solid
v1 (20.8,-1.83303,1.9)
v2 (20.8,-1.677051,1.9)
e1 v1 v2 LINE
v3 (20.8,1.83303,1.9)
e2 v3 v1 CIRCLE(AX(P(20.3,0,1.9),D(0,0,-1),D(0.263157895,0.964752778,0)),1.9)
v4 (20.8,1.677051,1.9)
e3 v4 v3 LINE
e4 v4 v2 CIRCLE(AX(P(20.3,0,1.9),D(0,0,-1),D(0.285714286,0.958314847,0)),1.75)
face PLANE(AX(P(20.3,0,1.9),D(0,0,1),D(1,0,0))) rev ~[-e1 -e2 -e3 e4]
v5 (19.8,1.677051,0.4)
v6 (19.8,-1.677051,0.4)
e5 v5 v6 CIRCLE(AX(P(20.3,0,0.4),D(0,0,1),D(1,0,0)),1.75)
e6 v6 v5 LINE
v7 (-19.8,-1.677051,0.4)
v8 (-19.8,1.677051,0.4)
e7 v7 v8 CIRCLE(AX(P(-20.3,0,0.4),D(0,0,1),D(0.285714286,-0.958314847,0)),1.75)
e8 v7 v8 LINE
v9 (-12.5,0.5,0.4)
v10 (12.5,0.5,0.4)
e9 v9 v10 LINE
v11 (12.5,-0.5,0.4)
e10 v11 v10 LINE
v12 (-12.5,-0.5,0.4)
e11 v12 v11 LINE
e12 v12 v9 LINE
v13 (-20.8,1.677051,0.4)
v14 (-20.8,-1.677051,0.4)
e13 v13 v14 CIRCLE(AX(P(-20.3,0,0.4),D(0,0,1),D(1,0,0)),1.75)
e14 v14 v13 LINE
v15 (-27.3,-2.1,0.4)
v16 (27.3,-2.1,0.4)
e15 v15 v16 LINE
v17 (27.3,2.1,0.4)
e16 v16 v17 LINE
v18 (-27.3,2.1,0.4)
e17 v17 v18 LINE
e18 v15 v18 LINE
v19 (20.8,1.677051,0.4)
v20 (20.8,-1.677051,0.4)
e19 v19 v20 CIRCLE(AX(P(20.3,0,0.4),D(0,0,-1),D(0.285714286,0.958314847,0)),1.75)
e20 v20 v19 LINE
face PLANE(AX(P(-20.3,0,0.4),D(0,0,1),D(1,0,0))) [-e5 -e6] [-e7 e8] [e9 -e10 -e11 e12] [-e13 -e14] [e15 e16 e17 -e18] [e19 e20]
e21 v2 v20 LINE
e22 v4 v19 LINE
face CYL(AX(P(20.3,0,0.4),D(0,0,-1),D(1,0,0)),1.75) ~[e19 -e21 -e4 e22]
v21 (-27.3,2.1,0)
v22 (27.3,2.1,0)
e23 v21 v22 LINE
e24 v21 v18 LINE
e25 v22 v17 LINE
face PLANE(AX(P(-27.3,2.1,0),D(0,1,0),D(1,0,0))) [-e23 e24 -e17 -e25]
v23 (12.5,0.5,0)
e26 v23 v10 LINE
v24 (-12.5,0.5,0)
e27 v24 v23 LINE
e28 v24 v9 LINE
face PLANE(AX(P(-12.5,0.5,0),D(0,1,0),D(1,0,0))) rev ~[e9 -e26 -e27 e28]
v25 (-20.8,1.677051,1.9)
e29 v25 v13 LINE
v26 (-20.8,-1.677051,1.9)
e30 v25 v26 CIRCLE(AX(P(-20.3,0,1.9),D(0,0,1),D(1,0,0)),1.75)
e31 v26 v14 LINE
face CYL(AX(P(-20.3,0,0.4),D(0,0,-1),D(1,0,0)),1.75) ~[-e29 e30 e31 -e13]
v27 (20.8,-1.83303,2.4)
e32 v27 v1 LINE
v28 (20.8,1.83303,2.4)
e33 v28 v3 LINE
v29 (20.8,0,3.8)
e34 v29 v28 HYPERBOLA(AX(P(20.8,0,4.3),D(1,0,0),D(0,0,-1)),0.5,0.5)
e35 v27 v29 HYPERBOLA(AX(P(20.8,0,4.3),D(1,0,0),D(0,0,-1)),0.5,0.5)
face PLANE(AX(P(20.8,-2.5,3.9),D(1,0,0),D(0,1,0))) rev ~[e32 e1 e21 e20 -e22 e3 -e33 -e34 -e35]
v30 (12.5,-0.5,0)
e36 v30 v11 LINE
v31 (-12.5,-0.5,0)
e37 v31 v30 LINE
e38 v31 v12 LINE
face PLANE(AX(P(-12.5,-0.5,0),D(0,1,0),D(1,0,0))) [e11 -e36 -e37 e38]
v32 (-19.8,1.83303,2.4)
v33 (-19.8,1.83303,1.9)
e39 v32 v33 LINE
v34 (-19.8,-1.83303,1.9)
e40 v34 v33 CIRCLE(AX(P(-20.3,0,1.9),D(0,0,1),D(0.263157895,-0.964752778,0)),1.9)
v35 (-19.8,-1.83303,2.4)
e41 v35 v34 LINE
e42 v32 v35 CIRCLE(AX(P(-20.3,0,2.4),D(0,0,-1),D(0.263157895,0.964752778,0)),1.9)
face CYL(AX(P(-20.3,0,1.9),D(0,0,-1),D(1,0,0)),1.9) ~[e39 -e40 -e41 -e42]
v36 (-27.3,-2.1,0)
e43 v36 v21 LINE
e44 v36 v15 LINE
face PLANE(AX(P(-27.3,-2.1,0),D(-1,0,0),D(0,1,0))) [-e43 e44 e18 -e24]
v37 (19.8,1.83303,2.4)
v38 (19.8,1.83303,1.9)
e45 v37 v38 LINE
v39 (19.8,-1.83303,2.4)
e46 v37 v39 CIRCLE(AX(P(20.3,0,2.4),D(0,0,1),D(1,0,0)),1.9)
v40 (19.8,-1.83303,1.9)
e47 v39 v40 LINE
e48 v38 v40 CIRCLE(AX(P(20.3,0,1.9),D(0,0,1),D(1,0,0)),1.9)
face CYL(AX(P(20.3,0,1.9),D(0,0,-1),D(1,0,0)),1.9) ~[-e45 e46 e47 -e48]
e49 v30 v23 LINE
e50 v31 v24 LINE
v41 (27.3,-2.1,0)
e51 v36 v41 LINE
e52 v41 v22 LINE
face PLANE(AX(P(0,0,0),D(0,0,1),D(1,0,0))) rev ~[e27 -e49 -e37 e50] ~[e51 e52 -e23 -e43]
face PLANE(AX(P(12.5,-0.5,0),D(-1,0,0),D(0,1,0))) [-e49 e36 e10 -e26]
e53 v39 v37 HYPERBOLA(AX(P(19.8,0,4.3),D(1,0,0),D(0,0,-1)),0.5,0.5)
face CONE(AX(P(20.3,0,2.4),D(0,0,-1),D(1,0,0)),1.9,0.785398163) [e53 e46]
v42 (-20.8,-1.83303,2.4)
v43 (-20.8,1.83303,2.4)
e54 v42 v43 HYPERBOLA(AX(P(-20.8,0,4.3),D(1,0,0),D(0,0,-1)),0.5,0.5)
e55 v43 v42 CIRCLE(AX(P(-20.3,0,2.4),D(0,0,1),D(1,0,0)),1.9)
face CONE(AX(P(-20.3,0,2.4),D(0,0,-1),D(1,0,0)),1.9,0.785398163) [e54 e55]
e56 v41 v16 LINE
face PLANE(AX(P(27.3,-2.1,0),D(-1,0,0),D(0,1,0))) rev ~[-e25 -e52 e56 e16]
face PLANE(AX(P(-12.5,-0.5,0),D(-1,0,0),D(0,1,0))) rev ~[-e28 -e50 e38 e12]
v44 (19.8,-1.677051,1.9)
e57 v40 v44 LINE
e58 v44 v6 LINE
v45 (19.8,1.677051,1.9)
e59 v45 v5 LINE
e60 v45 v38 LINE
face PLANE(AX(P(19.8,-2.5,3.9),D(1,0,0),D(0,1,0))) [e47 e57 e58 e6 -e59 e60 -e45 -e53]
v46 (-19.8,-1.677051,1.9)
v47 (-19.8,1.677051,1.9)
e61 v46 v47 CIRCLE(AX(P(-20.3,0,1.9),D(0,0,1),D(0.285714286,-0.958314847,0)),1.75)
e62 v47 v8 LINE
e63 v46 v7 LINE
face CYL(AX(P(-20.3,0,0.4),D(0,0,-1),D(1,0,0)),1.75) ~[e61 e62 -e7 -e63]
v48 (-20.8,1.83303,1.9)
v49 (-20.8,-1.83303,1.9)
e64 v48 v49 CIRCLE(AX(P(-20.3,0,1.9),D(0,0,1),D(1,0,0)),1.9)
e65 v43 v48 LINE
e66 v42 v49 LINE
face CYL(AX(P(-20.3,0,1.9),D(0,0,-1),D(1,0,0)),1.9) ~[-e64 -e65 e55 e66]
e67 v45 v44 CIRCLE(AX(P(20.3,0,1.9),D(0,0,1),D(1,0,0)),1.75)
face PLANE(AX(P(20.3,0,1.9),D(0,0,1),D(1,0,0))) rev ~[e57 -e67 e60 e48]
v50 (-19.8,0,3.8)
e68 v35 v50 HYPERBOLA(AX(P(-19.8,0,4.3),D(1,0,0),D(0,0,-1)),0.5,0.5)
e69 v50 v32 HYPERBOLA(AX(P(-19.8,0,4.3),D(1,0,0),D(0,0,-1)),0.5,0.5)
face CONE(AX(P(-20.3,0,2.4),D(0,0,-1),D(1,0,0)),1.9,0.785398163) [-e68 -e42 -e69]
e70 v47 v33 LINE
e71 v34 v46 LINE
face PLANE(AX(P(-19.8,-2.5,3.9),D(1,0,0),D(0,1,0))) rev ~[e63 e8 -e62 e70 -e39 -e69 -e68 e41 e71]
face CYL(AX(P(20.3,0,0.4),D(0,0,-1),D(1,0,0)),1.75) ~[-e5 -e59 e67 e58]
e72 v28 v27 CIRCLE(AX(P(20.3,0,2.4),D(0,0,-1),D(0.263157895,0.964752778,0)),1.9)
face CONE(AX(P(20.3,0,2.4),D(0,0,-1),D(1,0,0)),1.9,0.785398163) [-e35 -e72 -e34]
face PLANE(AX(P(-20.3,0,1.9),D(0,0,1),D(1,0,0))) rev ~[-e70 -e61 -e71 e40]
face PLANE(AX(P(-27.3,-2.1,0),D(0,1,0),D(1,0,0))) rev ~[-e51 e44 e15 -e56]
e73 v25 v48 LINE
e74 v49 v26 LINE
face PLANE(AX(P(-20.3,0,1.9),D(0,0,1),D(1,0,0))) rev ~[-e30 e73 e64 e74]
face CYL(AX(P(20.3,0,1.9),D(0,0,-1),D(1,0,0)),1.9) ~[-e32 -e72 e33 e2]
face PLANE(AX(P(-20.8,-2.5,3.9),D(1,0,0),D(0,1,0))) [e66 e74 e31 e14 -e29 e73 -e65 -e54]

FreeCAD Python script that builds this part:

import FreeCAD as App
import Part
import Sketcher

V = App.Vector
Q = App.Units.Quantity


def edges_at(feature, points):
    """Names of the edges that pass closest to the given points."""
    edges = feature.Shape.Edges
    near = lambda p: min(range(len(edges)), key=lambda i: edges[i].distToShape(Part.Vertex(*p))[0])
    return sorted({f"Edge{near(p) + 1}" for p in points})


def add_polygon(sketch, points):
    """Adds a closed chain of lines whose ends are joined by coincident constraints."""
    first, n = sketch.GeometryCount, len(points)
    for a, b in zip(points, points[1:] + points[:1]):
        sketch.addGeometry(Part.LineSegment(App.Vector(*a, 0), App.Vector(*b, 0)), False)
    for i in range(n):
        sketch.addConstraint(Sketcher.Constraint("Coincident", first + i, 2, first + (i + 1) % n, 1))

doc = App.newDocument("Part")
body = doc.addObject("PartDesign::Body", "Body")

# Sketch on XY plane
sketch1 = body.newObject("Sketcher::SketchObject", "Sketch")
sketch1.AttachmentSupport = (doc.getObject("XY_Plane"), [""])
sketch1.MapMode = "FlatFace"
add_polygon(sketch1, [(-27.3, 2.1), (-27.3, -2.1), (27.3, -2.1), (27.3, 2.1)])  # lines 0-3
add_polygon(sketch1, [(12.5, -0.5), (-12.5, -0.5), (-12.5, 0.5), (12.5, 0.5)])  # lines 4-7
sketch1.addConstraint([
    Sketcher.Constraint("Vertical", 0),
    Sketcher.Constraint("Horizontal", 1),
    Sketcher.Constraint("Vertical", 2),
    Sketcher.Constraint("Horizontal", 3),
    Sketcher.Constraint("Horizontal", 4),
    Sketcher.Constraint("Vertical", 5),
    Sketcher.Constraint("Horizontal", 6),
    Sketcher.Constraint("Vertical", 7),
    Sketcher.Constraint("Symmetric", 0, 2, 2, 2, -1, 1),
    Sketcher.Constraint("Symmetric", 4, 2, 6, 2, -1, 1),
    Sketcher.Constraint("DistanceX", 4, 2, 4, 1, Q("25 mm")),
    Sketcher.Constraint("DistanceY", 5, 1, 5, 2, Q("1 mm")),
    Sketcher.Constraint("DistanceX", 1, 1, 1, 2, Q("54.6 mm")),
    Sketcher.Constraint("DistanceY", 0, 2, 0, 1, Q("4.2 mm")),
])
pad1 = body.newObject("PartDesign::Pad", "Pad")
pad1.Profile = sketch1
pad1.Length = 0.4

# Sketch on XY plane
sketch2 = body.newObject("Sketcher::SketchObject", "Sketch001")
sketch2.AttachmentSupport = (doc.getObject("XY_Plane"), [""])
sketch2.MapMode = "FlatFace"
sketch2.AttachmentOffset = App.Placement(V(0, 0, 0.4), App.Rotation())
sketch2.addGeometry([
    Part.Circle(V(-20.3, 0, 0), V(0, 0, 1), 1.75),
    Part.Circle(V(20.3, 0, 0), V(0, 0, 1), 1.75),
], False)
sketch2.addConstraint([
    Sketcher.Constraint("Equal", 0, 1),
    Sketcher.Constraint("Symmetric", 0, 3, 1, 3, -1, 1),
    Sketcher.Constraint("PointOnObject", 0, 3, -1),
    Sketcher.Constraint("Diameter", 0, Q("3.5 mm")),
    Sketcher.Constraint("DistanceX", 0, 3, -1, 1, Q("20.3 mm")),
])
pad2 = body.newObject("PartDesign::Pad", "Pad001")
pad2.Profile = sketch2
pad2.Length = 1.5

# Sketch on XY plane
sketch3 = body.newObject("Sketcher::SketchObject", "Sketch002")
sketch3.AttachmentSupport = (doc.getObject("XY_Plane"), [""])
sketch3.MapMode = "FlatFace"
sketch3.AttachmentOffset = App.Placement(V(0, 0, 1.9), App.Rotation())
sketch3.addGeometry([
    Part.Circle(V(-20.3, 0, 0), V(0, 0, 1), 1.9),
    Part.Circle(V(20.3, 0, 0), V(0, 0, 1), 1.9),
], False)
sketch3.addConstraint([
    Sketcher.Constraint("Equal", 0, 1),
    Sketcher.Constraint("Symmetric", 0, 3, 1, 3, -1, 1),
    Sketcher.Constraint("PointOnObject", 0, 3, -1),
    Sketcher.Constraint("Diameter", 0, Q("3.8 mm")),
    Sketcher.Constraint("DistanceX", 0, 3, -1, 1, Q("20.3 mm")),
])
pad3 = body.newObject("PartDesign::Pad", "Pad002")
pad3.Profile = sketch3
pad3.Length = 2
doc.recompute()

chamfer = body.newObject("PartDesign::Chamfer", "Chamfer")
chamfer.Base = (pad3, edges_at(pad3, [(-22.2, 0, 3.9), (18.4, 0, 3.9)]))
chamfer.Size = 1.5

# Sketch on XY plane
sketch4 = body.newObject("Sketcher::SketchObject", "Sketch003")
sketch4.AttachmentSupport = (doc.getObject("XY_Plane"), [""])
sketch4.MapMode = "FlatFace"
sketch4.AttachmentOffset = App.Placement(V(0, 0, 3.9), App.Rotation())
add_polygon(sketch4, [(-20.8, 2.5), (-20.8, -2.5), (-19.8, -2.5), (-19.8, 2.5)])  # lines 0-3
add_polygon(sketch4, [(19.8, 2.5), (19.8, -2.5), (20.8, -2.5), (20.8, 2.5)])  # lines 4-7
sketch4.addConstraint([
    Sketcher.Constraint("Vertical", 0),
    Sketcher.Constraint("Horizontal", 1),
    Sketcher.Constraint("Vertical", 2),
    Sketcher.Constraint("Horizontal", 3),
    Sketcher.Constraint("Vertical", 4),
    Sketcher.Constraint("Horizontal", 5),
    Sketcher.Constraint("Vertical", 6),
    Sketcher.Constraint("Horizontal", 7),
    Sketcher.Constraint("Symmetric", 2, 2, 4, 2, -1, 1),
    Sketcher.Constraint("Symmetric", 0, 2, 6, 2, -1, 1),
    Sketcher.Constraint("Horizontal", 1, 2, 4, 2),
    Sketcher.Constraint("DistanceX", 1, 1, 1, 2, Q("1 mm")),
    Sketcher.Constraint("DistanceY", 0, 2, 0, 1, Q("5 mm")),
    Sketcher.Constraint("DistanceX", 0, 2, -1, 1, Q("20.8 mm")),
])
pocket1 = body.newObject("PartDesign::Pocket", "Pocket")
pocket1.Profile = sketch4
pocket1.Length = 3.5

doc.recompute()
